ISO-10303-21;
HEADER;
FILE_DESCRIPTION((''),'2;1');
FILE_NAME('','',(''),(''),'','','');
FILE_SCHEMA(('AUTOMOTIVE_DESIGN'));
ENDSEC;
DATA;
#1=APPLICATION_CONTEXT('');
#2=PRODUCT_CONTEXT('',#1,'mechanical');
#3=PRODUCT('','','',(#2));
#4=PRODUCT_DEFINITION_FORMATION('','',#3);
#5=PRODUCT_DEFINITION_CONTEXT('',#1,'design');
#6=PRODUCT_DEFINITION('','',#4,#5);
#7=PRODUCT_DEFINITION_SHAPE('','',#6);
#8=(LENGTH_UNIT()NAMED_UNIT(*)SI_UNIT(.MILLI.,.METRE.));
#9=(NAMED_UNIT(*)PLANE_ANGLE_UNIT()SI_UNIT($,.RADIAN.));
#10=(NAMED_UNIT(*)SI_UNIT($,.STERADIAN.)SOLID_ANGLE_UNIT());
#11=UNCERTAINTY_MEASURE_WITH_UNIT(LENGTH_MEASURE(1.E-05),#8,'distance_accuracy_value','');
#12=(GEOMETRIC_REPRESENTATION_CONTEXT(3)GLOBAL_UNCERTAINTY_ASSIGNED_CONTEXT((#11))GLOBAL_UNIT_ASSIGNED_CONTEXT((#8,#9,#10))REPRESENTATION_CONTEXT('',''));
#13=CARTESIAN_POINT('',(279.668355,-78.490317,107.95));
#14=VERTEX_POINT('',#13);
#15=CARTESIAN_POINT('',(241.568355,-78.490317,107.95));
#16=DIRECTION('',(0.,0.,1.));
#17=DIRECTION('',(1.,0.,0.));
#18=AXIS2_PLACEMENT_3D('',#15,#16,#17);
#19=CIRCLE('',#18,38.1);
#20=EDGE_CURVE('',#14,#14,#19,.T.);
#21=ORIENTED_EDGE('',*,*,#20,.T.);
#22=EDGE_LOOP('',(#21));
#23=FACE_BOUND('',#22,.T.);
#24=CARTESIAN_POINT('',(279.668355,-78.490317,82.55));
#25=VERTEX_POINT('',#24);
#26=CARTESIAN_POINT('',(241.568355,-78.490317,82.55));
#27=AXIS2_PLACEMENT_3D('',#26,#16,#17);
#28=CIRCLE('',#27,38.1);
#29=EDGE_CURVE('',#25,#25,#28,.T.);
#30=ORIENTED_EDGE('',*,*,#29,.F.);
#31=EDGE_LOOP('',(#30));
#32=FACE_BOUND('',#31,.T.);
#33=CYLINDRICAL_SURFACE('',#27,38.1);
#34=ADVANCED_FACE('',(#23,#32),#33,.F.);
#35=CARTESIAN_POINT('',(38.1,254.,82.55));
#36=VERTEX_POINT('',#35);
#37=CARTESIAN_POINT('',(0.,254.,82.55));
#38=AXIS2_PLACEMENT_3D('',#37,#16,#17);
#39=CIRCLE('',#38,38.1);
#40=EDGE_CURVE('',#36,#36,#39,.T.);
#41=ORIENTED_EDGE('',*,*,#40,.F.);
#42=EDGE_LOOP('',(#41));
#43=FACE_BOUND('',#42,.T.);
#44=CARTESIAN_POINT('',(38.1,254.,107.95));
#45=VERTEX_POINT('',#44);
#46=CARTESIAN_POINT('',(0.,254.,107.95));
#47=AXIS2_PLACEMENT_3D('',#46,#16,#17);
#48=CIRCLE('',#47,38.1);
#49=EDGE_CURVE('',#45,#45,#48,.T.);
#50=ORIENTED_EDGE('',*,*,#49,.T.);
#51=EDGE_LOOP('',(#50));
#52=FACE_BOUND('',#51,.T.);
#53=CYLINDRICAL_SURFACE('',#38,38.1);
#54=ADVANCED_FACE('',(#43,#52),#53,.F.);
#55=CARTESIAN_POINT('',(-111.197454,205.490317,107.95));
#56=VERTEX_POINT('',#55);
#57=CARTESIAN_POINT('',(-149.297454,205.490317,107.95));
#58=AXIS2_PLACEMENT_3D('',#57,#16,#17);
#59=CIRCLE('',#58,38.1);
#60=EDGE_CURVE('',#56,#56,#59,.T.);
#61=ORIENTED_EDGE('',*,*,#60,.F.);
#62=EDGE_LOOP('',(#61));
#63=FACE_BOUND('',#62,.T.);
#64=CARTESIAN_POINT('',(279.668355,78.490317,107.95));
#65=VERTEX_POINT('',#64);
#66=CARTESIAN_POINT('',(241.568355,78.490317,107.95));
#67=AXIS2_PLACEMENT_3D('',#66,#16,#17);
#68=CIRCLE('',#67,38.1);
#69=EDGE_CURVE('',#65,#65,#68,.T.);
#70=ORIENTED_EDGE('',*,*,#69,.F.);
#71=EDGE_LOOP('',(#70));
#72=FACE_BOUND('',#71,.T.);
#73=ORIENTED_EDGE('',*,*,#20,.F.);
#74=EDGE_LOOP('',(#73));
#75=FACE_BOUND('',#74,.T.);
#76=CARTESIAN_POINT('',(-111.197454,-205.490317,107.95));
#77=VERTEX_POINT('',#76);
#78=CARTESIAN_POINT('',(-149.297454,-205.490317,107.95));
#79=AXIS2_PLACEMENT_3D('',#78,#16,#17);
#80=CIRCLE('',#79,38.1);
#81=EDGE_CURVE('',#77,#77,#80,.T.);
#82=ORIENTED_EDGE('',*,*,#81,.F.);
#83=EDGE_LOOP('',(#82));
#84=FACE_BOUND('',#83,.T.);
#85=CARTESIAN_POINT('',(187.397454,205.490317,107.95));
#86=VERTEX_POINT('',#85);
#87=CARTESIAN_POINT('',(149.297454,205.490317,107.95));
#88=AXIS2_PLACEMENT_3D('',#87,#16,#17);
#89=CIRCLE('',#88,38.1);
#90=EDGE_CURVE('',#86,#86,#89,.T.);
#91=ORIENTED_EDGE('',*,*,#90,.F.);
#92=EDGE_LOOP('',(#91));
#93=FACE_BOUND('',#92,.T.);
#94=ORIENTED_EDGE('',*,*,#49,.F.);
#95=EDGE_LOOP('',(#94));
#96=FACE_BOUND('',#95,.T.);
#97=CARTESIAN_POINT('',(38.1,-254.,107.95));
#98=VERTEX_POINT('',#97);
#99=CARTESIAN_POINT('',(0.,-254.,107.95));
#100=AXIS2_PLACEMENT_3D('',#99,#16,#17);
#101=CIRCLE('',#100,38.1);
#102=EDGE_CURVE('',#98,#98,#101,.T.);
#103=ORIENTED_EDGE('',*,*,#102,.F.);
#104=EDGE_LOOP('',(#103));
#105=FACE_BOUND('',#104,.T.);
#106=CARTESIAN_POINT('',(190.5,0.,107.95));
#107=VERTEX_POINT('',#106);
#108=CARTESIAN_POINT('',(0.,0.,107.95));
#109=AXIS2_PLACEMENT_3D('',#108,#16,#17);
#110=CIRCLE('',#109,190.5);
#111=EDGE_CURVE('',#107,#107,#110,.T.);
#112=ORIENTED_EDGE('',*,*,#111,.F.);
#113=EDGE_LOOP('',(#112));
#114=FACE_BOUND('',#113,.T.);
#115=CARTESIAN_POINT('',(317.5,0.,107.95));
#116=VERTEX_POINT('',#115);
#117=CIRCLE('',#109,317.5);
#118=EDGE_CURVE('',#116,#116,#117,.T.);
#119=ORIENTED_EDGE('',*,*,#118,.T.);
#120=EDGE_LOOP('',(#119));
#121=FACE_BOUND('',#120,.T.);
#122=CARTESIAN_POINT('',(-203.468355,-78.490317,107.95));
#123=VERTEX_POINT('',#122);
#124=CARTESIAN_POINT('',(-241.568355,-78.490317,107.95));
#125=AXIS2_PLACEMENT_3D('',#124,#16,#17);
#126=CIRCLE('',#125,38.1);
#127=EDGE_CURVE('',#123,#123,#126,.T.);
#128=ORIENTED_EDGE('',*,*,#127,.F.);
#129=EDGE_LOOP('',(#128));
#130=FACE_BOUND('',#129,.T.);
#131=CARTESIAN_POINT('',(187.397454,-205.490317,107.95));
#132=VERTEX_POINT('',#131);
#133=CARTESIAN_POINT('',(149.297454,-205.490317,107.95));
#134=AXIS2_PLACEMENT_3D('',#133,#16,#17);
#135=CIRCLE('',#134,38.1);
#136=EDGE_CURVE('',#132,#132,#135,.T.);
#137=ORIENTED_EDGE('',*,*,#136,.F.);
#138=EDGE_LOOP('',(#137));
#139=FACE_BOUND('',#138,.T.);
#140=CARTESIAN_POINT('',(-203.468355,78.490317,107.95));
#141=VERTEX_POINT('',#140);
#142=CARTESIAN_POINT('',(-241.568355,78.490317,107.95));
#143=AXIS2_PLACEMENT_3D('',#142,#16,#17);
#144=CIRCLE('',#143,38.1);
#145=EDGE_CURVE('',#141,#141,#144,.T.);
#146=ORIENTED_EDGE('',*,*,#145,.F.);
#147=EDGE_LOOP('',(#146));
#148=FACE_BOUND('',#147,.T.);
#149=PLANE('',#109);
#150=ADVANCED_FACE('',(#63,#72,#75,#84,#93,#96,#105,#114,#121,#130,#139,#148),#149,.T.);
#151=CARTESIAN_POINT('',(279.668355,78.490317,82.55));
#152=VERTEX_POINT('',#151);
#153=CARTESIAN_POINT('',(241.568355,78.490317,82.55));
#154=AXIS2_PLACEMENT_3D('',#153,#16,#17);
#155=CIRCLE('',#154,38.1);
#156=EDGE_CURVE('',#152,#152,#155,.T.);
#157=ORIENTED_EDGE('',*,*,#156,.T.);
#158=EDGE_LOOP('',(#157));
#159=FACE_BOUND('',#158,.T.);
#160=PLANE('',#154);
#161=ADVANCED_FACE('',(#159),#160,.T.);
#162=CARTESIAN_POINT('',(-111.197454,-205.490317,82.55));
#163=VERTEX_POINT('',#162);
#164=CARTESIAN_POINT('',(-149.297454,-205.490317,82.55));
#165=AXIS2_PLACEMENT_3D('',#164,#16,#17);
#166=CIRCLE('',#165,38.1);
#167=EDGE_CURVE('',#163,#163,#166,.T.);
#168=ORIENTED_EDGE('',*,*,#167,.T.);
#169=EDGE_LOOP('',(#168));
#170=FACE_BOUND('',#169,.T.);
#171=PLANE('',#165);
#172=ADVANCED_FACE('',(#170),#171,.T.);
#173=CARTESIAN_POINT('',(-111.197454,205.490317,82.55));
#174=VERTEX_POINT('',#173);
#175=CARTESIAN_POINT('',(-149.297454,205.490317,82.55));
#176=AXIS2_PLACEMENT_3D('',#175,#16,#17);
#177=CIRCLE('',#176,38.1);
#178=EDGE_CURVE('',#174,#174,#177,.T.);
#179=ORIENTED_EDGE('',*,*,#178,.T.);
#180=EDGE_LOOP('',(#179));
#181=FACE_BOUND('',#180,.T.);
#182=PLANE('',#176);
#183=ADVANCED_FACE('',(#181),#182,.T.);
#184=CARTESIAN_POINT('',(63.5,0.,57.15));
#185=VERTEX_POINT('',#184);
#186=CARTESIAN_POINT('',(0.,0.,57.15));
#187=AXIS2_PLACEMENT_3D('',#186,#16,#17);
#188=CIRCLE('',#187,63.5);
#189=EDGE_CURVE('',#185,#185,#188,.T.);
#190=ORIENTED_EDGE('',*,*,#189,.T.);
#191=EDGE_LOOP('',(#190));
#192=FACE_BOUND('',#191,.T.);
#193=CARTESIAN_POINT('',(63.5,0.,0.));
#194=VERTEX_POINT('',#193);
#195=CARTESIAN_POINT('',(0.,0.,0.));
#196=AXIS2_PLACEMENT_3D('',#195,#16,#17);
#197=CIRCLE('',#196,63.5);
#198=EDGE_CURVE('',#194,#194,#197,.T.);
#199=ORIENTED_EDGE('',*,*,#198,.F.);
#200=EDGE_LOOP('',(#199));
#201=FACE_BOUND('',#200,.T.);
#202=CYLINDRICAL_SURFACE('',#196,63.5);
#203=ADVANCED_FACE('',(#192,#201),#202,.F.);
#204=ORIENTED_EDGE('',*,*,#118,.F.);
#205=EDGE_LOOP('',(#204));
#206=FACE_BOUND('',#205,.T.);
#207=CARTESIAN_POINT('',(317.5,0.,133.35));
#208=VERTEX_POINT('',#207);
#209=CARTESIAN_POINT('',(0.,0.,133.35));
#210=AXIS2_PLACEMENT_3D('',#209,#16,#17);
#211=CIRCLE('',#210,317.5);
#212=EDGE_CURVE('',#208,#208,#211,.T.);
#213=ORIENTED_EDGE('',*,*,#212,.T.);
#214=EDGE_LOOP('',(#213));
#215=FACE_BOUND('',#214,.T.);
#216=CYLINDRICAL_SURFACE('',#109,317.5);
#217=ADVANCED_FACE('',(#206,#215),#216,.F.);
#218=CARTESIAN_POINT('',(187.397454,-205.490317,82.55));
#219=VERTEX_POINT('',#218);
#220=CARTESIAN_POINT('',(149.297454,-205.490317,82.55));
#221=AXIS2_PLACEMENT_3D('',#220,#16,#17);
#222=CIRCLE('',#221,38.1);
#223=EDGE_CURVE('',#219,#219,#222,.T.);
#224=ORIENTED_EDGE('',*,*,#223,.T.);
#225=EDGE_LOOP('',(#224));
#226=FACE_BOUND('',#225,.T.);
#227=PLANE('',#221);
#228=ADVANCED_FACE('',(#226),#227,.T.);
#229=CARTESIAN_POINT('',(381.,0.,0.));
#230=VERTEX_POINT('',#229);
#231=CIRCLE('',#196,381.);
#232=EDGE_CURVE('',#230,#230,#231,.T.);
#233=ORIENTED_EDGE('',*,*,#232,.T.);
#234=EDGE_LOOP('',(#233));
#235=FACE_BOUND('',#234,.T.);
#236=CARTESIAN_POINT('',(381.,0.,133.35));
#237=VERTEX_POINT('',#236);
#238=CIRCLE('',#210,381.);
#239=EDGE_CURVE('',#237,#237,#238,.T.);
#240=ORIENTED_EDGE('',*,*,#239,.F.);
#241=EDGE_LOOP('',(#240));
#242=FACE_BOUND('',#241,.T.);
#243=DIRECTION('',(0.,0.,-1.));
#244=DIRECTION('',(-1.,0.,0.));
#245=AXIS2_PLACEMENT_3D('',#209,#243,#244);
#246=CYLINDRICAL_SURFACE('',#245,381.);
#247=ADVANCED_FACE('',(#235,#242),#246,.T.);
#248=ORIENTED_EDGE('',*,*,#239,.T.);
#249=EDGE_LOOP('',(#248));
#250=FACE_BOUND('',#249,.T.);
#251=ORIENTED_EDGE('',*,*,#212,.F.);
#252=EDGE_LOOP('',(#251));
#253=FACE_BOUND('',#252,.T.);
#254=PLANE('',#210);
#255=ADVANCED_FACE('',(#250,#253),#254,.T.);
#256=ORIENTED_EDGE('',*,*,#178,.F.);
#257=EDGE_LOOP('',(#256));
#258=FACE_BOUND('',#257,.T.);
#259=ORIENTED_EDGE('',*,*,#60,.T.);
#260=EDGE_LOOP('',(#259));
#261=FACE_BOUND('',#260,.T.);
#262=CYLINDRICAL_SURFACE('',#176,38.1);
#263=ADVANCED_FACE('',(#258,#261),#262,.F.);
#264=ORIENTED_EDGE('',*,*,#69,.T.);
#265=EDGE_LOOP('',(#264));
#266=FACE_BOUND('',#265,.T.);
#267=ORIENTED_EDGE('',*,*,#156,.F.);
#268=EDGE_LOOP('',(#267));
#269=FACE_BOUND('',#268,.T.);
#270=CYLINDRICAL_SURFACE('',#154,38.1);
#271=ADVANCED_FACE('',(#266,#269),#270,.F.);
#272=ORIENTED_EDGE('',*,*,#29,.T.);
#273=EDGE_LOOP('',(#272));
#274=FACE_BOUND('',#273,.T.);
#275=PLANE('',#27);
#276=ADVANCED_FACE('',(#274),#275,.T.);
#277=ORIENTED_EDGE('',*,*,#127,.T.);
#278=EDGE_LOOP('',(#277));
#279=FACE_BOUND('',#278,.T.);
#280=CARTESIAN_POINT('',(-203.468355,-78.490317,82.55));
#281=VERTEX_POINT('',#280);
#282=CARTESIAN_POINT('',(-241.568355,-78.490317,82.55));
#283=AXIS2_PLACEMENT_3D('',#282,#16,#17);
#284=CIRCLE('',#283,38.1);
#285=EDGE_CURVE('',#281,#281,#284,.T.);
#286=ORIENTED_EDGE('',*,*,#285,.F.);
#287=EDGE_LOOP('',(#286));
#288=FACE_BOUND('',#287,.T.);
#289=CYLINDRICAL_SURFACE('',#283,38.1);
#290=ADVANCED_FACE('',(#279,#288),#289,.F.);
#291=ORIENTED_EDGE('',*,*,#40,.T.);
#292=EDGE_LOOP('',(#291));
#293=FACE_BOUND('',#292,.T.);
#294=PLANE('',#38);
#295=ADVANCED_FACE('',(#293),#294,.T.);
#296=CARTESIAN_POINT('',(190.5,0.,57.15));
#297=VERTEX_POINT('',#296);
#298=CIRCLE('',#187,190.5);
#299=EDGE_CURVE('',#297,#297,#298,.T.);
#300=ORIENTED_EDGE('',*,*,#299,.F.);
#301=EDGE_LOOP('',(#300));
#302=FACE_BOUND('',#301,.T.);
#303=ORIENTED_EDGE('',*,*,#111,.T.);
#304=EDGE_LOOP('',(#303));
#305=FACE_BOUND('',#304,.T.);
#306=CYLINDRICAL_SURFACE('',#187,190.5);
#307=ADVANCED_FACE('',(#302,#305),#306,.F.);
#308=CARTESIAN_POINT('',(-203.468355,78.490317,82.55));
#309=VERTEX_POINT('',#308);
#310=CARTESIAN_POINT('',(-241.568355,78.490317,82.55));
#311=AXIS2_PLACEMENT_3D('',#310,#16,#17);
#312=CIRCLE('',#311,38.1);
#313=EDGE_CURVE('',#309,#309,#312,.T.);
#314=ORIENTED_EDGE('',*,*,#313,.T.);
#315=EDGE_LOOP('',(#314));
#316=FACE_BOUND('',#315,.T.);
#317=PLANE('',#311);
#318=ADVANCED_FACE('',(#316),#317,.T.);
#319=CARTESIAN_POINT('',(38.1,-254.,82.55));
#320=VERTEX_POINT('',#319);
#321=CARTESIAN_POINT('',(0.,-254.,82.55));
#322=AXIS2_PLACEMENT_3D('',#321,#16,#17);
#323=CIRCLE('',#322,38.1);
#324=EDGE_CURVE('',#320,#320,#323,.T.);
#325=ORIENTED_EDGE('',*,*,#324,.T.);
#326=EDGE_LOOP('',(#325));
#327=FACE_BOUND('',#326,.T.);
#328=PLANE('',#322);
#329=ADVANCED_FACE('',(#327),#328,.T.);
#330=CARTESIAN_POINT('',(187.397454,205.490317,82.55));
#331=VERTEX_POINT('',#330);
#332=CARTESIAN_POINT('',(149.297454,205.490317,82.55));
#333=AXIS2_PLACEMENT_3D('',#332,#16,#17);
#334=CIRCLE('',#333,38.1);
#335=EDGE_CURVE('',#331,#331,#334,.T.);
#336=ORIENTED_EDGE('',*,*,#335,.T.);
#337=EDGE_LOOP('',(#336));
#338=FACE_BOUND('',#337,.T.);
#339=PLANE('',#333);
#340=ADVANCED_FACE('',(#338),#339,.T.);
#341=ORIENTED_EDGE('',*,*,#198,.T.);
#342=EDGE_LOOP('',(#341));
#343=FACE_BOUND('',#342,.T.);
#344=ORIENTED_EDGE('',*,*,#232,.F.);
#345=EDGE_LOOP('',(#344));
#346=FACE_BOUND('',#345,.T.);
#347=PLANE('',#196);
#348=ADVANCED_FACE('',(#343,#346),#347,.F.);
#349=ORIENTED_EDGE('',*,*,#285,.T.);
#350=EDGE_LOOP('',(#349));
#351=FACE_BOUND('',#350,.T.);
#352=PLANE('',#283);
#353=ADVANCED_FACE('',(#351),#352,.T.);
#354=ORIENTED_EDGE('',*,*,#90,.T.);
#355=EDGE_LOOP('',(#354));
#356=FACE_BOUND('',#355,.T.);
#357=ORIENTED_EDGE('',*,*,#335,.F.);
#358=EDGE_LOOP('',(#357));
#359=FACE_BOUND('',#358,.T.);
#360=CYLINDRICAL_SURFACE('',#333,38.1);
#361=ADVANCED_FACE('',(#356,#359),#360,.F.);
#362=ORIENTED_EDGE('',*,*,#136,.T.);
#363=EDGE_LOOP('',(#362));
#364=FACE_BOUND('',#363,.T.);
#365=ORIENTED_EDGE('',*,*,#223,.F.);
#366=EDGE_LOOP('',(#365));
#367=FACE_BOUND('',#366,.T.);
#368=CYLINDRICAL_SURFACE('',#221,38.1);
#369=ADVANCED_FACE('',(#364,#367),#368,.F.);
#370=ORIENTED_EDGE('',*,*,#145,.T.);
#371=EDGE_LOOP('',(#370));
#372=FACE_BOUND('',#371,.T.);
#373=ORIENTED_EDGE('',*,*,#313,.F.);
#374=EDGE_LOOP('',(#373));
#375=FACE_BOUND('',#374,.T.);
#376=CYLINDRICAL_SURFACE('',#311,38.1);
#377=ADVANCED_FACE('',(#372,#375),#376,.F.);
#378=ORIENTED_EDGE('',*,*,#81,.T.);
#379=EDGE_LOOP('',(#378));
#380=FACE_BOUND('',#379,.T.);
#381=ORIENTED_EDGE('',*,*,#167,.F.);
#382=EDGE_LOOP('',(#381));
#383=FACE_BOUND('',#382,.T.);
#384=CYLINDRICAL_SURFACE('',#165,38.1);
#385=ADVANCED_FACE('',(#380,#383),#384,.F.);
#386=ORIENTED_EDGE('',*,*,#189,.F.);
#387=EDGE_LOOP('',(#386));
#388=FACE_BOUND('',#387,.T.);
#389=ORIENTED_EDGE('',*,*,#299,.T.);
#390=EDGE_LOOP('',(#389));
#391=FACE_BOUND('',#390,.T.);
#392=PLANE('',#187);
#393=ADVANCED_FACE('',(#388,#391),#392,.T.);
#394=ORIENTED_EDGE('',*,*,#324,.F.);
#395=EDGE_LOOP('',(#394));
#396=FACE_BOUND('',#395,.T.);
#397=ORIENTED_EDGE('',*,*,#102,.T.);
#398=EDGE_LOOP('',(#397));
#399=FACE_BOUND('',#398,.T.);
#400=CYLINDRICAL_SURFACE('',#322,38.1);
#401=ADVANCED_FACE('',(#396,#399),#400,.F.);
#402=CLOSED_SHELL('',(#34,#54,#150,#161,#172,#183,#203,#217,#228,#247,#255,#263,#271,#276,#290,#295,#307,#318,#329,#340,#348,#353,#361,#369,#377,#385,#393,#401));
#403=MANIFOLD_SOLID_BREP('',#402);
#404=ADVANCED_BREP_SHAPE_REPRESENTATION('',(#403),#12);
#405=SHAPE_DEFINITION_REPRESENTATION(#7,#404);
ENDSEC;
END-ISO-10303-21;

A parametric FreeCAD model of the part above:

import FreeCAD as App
import Part
import Sketcher
from FreeCAD import Vector
Q = App.Units.Quantity

doc = App.newDocument("Part")
body = doc.addObject("PartDesign::Body", "Body")

# Sketch on XY plane
sketch1 = body.newObject("Sketcher::SketchObject", "Sketch")
sketch1.AttachmentSupport = (doc.getObject("XY_Plane"), [""])
sketch1.MapMode = "FlatFace"
sketch1.addGeometry(Part.Circle(Vector(0, 0, 0), Vector(0, 0, 1), 381), False)
sketch1.addConstraint(Sketcher.Constraint("Coincident", 0, 3, -1, 1))
sketch1.addConstraint(Sketcher.Constraint("Diameter", 0, Q("30 in")))
pad1 = body.newObject("PartDesign::Pad", "Pad")
pad1.Profile = sketch1
pad1.Length = Q("5.25 in")

# Sketch on XY plane
sketch2 = body.newObject("Sketcher::SketchObject", "Sketch001")
sketch2.AttachmentSupport = (doc.getObject("XY_Plane"), [""])
sketch2.MapMode = "FlatFace"
sketch2.AttachmentOffset = App.Placement(Vector(0, 0, 5.25 * 25.4), App.Rotation())
sketch2.addGeometry(Part.Circle(Vector(0, 0, 0), Vector(0, 0, 1), 317.5), False)
sketch2.addConstraint(Sketcher.Constraint("Coincident", 0, 3, -1, 1))
sketch2.addConstraint(Sketcher.Constraint("Diameter", 0, Q("25 in")))
pocket1 = body.newObject("PartDesign::Pocket", "Pocket")
pocket1.Profile = sketch2
pocket1.Length = Q("1 in")

# Sketch on XY plane
sketch3 = body.newObject("Sketcher::SketchObject", "Sketch002")
sketch3.AttachmentSupport = (doc.getObject("XY_Plane"), [""])
sketch3.MapMode = "FlatFace"
sketch3.AttachmentOffset = App.Placement(Vector(0, 0, 4.25 * 25.4), App.Rotation())
sketch3.addGeometry(Part.Circle(Vector(0, 254, 0), Vector(0, 0, 1), 38.1), False)
sketch3.addGeometry(Part.Circle(Vector(149.297454, 205.490317, 0), Vector(0, 0, 1), 38.1), False)
sketch3.addGeometry(Part.Circle(Vector(241.568355, 78.490317, 0), Vector(0, 0, 1), 38.1), False)
sketch3.addGeometry(Part.Circle(Vector(241.568355, -78.490317, 0), Vector(0, 0, 1), 38.1), False)
sketch3.addGeometry(Part.Circle(Vector(149.297454, -205.490317, 0), Vector(0, 0, 1), 38.1), False)
sketch3.addGeometry(Part.Circle(Vector(0, -254, 0), Vector(0, 0, 1), 38.1), False)
sketch3.addGeometry(Part.Circle(Vector(-149.297454, -205.490317, 0), Vector(0, 0, 1), 38.1), False)
sketch3.addGeometry(Part.Circle(Vector(-241.568355, -78.490317, 0), Vector(0, 0, 1), 38.1), False)
sketch3.addGeometry(Part.Circle(Vector(-241.568355, 78.490317, 0), Vector(0, 0, 1), 38.1), False)
sketch3.addGeometry(Part.Circle(Vector(-149.297454, 205.490317, 0), Vector(0, 0, 1), 38.1), False)
sketch3.addConstraint(Sketcher.Constraint("Equal", 0, 1))
sketch3.addConstraint(Sketcher.Constraint("Equal", 1, 2))
sketch3.addConstraint(Sketcher.Constraint("Equal", 2, 3))
sketch3.addConstraint(Sketcher.Constraint("Equal", 3, 4))
sketch3.addConstraint(Sketcher.Constraint("Equal", 4, 5))
sketch3.addConstraint(Sketcher.Constraint("Equal", 5, 6))
sketch3.addConstraint(Sketcher.Constraint("Equal", 6, 7))
sketch3.addConstraint(Sketcher.Constraint("Equal", 7, 8))
sketch3.addConstraint(Sketcher.Constraint("Equal", 8, 9))
sketch3.addConstraint(Sketcher.Constraint("Symmetric", 0, 3, 5, 3, -1, 1))
sketch3.addConstraint(Sketcher.Constraint("Symmetric", 1, 3, 6, 3, -1, 1))
sketch3.addConstraint(Sketcher.Constraint("Symmetric", 2, 3, 7, 3, -1, 1))
sketch3.addConstraint(Sketcher.Constraint("Symmetric", 3, 3, 8, 3, -1, 1))
sketch3.addConstraint(Sketcher.Constraint("Symmetric", 4, 3, 9, 3, -1, 1))
sketch3.addConstraint(Sketcher.Constraint("Symmetric", 4, 3, 6, 3, -2))
sketch3.addConstraint(Sketcher.Constraint("Symmetric", 3, 3, 7, 3, -2))
sketch3.addConstraint(Sketcher.Constraint("PointOnObject", 0, 3, -2))
sketch3.addConstraint(Sketcher.Constraint("Diameter", 0, Q("3 in")))
sketch3.addConstraint(Sketcher.Constraint("DistanceY", -1, 1, 0, 3, Q("10 in")))
sketch3.addConstraint(Sketcher.Constraint("DistanceY", 2, 3, 1, 3, Q("5 in")))
sketch3.addConstraint(Sketcher.Constraint("DistanceX", 1, 3, 2, 3, 92.270901))
sketch3.addConstraint(Sketcher.Constraint("DistanceX", 6, 3, 4, 3, 298.594908))
sketch3.addConstraint(Sketcher.Constraint("DistanceY", -1, 1, 1, 3, 205.490317))
pocket2 = body.newObject("PartDesign::Pocket", "Pocket001")
pocket2.Profile = sketch3
pocket2.Length = Q("1 in")

# Sketch on XY plane
sketch4 = body.newObject("Sketcher::SketchObject", "Sketch003")
sketch4.AttachmentSupport = (doc.getObject("XY_Plane"), [""])
sketch4.MapMode = "FlatFace"
sketch4.AttachmentOffset = App.Placement(Vector(0, 0, 4.25 * 25.4), App.Rotation())
sketch4.addGeometry(Part.Circle(Vector(0, 0, 0), Vector(0, 0, 1), 190.5), False)
sketch4.addConstraint(Sketcher.Constraint("Coincident", 0, 3, -1, 1))
sketch4.addConstraint(Sketcher.Constraint("Diameter", 0, Q("15 in")))
pocket3 = body.newObject("PartDesign::Pocket", "Pocket002")
pocket3.Profile = sketch4
pocket3.Length = Q("2 in")

# Sketch on XY plane
sketch5 = body.newObject("Sketcher::SketchObject", "Sketch004")
sketch5.AttachmentSupport = (doc.getObject("XY_Plane"), [""])
sketch5.MapMode = "FlatFace"
sketch5.AttachmentOffset = App.Placement(Vector(0, 0, 2.25 * 25.4), App.Rotation())
sketch5.addGeometry(Part.Circle(Vector(0, 0, 0), Vector(0, 0, 1), 63.5), False)
sketch5.addConstraint(Sketcher.Constraint("Coincident", 0, 3, -1, 1))
sketch5.addConstraint(Sketcher.Constraint("Diameter", 0, Q("5 in")))
pocket4 = body.newObject("PartDesign::Pocket", "Pocket003")
pocket4.Profile = sketch5
pocket4.Type = "ThroughAll"

doc.recompute()
